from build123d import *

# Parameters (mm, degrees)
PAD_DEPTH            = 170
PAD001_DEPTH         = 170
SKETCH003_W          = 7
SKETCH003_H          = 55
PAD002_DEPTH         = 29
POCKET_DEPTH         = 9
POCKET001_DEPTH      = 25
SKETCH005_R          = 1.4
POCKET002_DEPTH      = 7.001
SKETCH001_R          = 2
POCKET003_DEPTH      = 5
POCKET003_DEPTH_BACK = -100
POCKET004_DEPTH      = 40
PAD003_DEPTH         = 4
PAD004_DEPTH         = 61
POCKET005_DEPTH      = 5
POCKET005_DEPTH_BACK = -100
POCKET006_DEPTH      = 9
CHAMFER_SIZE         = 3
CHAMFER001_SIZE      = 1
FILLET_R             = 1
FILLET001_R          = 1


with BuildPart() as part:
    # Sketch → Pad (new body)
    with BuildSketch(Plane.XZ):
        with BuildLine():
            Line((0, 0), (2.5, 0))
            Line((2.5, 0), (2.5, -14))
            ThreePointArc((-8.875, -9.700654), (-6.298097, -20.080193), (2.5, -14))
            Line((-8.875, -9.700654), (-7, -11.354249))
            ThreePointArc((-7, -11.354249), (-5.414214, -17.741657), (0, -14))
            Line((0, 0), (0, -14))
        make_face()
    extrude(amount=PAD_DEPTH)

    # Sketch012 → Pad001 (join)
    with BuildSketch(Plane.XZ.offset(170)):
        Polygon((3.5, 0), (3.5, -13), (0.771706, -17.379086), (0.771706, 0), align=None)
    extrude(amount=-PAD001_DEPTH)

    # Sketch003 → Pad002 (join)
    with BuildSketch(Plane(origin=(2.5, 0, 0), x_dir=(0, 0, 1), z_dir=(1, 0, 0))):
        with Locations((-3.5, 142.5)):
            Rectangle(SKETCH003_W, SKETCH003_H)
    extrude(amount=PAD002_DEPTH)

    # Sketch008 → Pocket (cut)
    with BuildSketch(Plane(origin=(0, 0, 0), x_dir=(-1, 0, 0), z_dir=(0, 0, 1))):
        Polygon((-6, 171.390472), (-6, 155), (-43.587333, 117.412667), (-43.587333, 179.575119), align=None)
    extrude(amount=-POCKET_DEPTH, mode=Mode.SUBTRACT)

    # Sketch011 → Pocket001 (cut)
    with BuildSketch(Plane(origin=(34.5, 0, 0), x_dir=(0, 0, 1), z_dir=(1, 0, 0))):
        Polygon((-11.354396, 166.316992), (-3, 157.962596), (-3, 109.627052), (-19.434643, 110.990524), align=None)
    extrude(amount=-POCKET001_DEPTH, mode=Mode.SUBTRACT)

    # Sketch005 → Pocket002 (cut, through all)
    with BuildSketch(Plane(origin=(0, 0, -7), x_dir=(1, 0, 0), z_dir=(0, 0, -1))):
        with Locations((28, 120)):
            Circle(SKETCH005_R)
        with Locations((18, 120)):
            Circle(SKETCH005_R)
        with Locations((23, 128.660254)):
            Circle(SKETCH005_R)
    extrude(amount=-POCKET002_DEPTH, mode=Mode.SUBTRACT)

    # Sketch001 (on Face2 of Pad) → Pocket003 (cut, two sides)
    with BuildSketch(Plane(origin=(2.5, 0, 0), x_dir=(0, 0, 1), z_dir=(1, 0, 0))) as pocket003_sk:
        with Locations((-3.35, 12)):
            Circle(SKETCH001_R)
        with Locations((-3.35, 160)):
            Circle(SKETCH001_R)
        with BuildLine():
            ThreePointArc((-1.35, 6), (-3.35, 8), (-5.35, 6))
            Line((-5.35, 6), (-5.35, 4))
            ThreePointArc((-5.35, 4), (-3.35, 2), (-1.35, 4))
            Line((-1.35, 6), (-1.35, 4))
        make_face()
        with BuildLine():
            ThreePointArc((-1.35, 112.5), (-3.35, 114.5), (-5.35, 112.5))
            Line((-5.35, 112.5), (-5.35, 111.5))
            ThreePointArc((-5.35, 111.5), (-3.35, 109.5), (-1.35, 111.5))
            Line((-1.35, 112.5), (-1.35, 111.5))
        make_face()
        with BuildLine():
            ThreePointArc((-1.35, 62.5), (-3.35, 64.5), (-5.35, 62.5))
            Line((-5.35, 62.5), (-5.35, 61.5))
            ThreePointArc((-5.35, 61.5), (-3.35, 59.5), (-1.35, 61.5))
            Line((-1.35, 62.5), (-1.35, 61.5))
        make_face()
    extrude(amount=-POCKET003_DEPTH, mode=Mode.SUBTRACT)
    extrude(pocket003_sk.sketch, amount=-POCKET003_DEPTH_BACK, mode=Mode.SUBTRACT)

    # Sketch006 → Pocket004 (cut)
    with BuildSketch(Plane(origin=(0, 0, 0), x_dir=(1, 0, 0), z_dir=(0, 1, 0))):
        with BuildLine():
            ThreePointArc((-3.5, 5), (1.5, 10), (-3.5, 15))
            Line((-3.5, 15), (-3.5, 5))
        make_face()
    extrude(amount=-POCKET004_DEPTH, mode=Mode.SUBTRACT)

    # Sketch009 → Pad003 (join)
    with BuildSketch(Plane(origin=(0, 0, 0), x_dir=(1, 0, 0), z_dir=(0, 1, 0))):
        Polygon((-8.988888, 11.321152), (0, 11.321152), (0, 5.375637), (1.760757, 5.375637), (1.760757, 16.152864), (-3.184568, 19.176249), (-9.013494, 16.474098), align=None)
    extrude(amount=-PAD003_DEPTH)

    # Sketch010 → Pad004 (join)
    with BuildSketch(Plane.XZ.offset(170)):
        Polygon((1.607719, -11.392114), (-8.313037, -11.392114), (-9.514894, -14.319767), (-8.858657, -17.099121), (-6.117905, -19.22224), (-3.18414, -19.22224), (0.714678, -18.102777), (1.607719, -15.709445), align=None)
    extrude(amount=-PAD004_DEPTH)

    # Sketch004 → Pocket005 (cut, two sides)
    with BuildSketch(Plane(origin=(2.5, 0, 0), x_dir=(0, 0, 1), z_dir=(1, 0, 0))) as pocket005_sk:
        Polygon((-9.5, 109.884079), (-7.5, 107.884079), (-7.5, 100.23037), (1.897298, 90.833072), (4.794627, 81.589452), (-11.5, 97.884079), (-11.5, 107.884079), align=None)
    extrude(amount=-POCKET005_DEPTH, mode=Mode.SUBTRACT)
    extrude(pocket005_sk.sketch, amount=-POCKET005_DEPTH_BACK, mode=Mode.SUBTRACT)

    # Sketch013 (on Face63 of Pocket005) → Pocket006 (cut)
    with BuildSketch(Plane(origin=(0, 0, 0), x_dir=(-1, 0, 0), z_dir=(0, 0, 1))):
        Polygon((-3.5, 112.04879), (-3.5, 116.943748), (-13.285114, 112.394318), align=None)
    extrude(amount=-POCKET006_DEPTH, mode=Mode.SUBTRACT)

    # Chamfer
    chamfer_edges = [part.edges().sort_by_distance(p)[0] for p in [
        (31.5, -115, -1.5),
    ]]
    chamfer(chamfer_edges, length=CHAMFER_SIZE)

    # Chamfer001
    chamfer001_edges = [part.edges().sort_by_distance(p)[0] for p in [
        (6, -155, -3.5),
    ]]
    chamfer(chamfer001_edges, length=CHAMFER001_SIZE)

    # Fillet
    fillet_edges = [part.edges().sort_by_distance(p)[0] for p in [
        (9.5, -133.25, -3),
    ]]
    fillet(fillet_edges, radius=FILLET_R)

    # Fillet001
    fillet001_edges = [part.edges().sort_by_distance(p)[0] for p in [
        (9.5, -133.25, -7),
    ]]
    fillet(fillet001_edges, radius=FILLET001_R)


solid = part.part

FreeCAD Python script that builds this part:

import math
import FreeCAD as App
import Part
import Sketcher
from FreeCAD import Vector
Q = App.Units.Quantity


def edges_at(feature, points):
    """Names of the edges that pass closest to the given points."""
    edges = feature.Shape.Edges
    near = lambda p: min(range(len(edges)), key=lambda i: edges[i].distToShape(Part.Vertex(*p))[0])
    return sorted({f"Edge{near(p) + 1}" for p in points})


def add_polygon(sketch, points):
    """Adds a closed chain of lines whose ends are joined by coincident constraints."""
    first, n = sketch.GeometryCount, len(points)
    for a, b in zip(points, points[1:] + points[:1]):
        sketch.addGeometry(Part.LineSegment(App.Vector(*a, 0), App.Vector(*b, 0)), False)
    for i in range(n):
        sketch.addConstraint(Sketcher.Constraint("Coincident", first + i, 2, first + (i + 1) % n, 1))

doc = App.newDocument("Part")
body = doc.addObject("PartDesign::Body", "Body")

sketch1 = body.newObject("Sketcher::SketchObject", "Sketch")
sketch1.AttachmentSupport = (doc.getObject("XZ_Plane"), [""])
sketch1.MapMode = "FlatFace"
sketch1.addGeometry([
    Part.LineSegment(Vector(2.5, 0, 0), Vector(0, 0, 0)),
    Part.LineSegment(Vector(0, 0, 0), Vector(0, -14, 0)),
    Part.ArcOfCircle(Part.Circle(Vector(-4, -14, 0), Vector(0, 0, 1), 4), math.radians(139), math.radians(360)),
    Part.LineSegment(Vector(-7, -11.4, 0), Vector(-8.9, -9.7, 0)),
    Part.ArcOfCircle(Part.Circle(Vector(-4, -14, 0), Vector(0, 0, 1), 6.5), math.radians(139), math.radians(360)),
    Part.LineSegment(Vector(2.5, -14, 0), Vector(2.5, 0, 0)),
], False)
sketch1.addConstraint([
    Sketcher.Constraint("Coincident", 0, 2, 1, 1),
    Sketcher.Constraint("Tangent", 1, 2, 2, 2),
    Sketcher.Constraint("Coincident", 2, 1, 3, 1),
    Sketcher.Constraint("Coincident", 3, 2, 4, 1),
    Sketcher.Constraint("Tangent", 4, 2, 5, 1),
    Sketcher.Constraint("Coincident", 5, 2, 0, 1),
    Sketcher.Constraint("Horizontal", 0),
    Sketcher.Constraint("Vertical", 1),
    Sketcher.Constraint("Vertical", 5),
    Sketcher.Constraint("Coincident", 0, 2, -1, 1),
    Sketcher.Constraint("Coincident", 4, 3, 2, 3),
    Sketcher.Constraint("Radius", 2, 4.0),
    Sketcher.Constraint("Radius", 4, 6.5),
    Sketcher.Constraint("DistanceY", 1, 2, 1, 1, 14.0),
    Sketcher.Constraint("DistanceX", 2, 1, -1, 1, 7.0),
    Sketcher.Constraint("DistanceX", 3, 2, -1, 1, 8.875),
])
pad1 = body.newObject("PartDesign::Pad", "Pad")
pad1.Profile = sketch1
pad1.Length = 170

sketch2 = body.newObject("Sketcher::SketchObject", "Sketch001")
sketch2.AttachmentSupport = (doc.getObject("XZ_Plane"), [""])
sketch2.MapMode = "FlatFace"
sketch2.AttachmentOffset = App.Placement(Vector(0, 0, 170), App.Rotation())
add_polygon(sketch2, [(3.5, -13), (3.5, 0), (0.8, 0), (0.8, -17.4)])
sketch2.addConstraint([
    Sketcher.Constraint("Vertical", 0),
    Sketcher.Constraint("Horizontal", 1),
    Sketcher.Constraint("Vertical", 2),
    Sketcher.Constraint("PointOnObject", 0, 2, -1),
    Sketcher.Constraint("DistanceY", 0, 1, 0, 2, 13.0),
    Sketcher.Constraint("DistanceX", -1, 1, 0, 2, 3.5),
    Sketcher.Constraint("DistanceX", 1, 2, 1, 1, 2.728294),
    Sketcher.Constraint("DistanceY", 2, 2, 2, 1, 17.379086),
])
pad2 = body.newObject("PartDesign::Pad", "Pad001")
pad2.Profile = sketch2
pad2.Length = 170
pad2.Reversed = True

sketch3 = body.newObject("Sketcher::SketchObject", "Sketch002")
sketch3.AttachmentSupport = (doc.getObject("YZ_Plane"), [""])
sketch3.MapMode = "FlatFace"
sketch3.AttachmentOffset = App.Placement(Vector(0, 0, 2.5), App.Rotation())
add_polygon(sketch3, [(-170, -7), (-115, -7), (-115, 0), (-170, 0)])
sketch3.addConstraint([
    Sketcher.Constraint("Horizontal", 0),
    Sketcher.Constraint("Vertical", 1),
    Sketcher.Constraint("Horizontal", 2),
    Sketcher.Constraint("Vertical", 3),
    Sketcher.Constraint("PointOnObject", 1, 2, -1),
    Sketcher.Constraint("DistanceX", 0, 1, 0, 2, 55.0),
    Sketcher.Constraint("DistanceY", 1, 1, 1, 2, 7.0),
    Sketcher.Constraint("DistanceX", 0, 2, -1, 1, 115.0),
])
pad3 = body.newObject("PartDesign::Pad", "Pad002")
pad3.Profile = sketch3
pad3.Length = 29

sketch4 = body.newObject("Sketcher::SketchObject", "Sketch003")
sketch4.AttachmentSupport = (doc.getObject("XY_Plane"), [""])
sketch4.MapMode = "FlatFace"
add_polygon(sketch4, [(6, -155), (6, -171), (44, -180), (44, -117)])
sketch4.addConstraint([
    Sketcher.Constraint("Vertical", 0),
    Sketcher.Constraint("Vertical", 2),
    Sketcher.Constraint("Angle", 3, Q("-135 deg")),
    Sketcher.Constraint("DistanceX", -1, 1, 0, 2, 6.0),
    Sketcher.Constraint("DistanceY", 3, 2, -1, 1, 155.0),
    Sketcher.Constraint("DistanceY", 0, 2, 0, 1, 16.390472),
    Sketcher.Constraint("DistanceY", 2, 1, 2, 2, 62.162452),
    Sketcher.Constraint("DistanceY", 1, 2, -1, 1, 179.575119),
])
pocket1 = body.newObject("PartDesign::Pocket", "Pocket")
pocket1.Profile = sketch4
pocket1.Length = 9

sketch5 = body.newObject("Sketcher::SketchObject", "Sketch004")
sketch5.AttachmentSupport = (doc.getObject("YZ_Plane"), [""])
sketch5.MapMode = "FlatFace"
sketch5.AttachmentOffset = App.Placement(Vector(0, 0, 34.5), App.Rotation())
add_polygon(sketch5, [(-158, -3), (-166, -11), (-111, -19), (-110, -3)])
sketch5.addConstraint([
    Sketcher.Constraint("Horizontal", 3),
    Sketcher.Constraint("Angle", 0, Q("-135 deg")),
    Sketcher.Constraint("DistanceY", 2, 2, -1, 1, 3.0),
    Sketcher.Constraint("Distance", 0, 11.8149),
    Sketcher.Constraint("Distance", 1, 55.913401),
    Sketcher.Constraint("DistanceX", 3, 2, 3, 1, 48.335544),
    Sketcher.Constraint("DistanceX", 0, 2, -1, 1, 166.316992),
    Sketcher.Constraint("DistanceX", 0, 2, 1, 2, 55.326468),
])
pocket2 = body.newObject("PartDesign::Pocket", "Pocket001")
pocket2.Profile = sketch5
pocket2.Length = 25

sketch6 = body.newObject("Sketcher::SketchObject", "Sketch005")
sketch6.AttachmentSupport = (doc.getObject("XY_Plane"), [""])
sketch6.MapMode = "FlatFace"
sketch6.AttachmentOffset = App.Placement(Vector(0, 0, -7), App.Rotation())
sketch6.addGeometry([
    Part.Circle(Vector(28, -120, 0), Vector(0, 0, 1), 1.4),
    Part.Circle(Vector(18, -120, 0), Vector(0, 0, 1), 1.4),
    Part.Circle(Vector(23, -128.7, 0), Vector(0, 0, 1), 1.4),
], False)
sketch6.addConstraint([
    Sketcher.Constraint("Equal", 0, 1),
    Sketcher.Constraint("Equal", 1, 2),
    Sketcher.Constraint("Horizontal", 0, 3, 1, 3),
    Sketcher.Constraint("Diameter", 0, 2.8),
    Sketcher.Constraint("DistanceX", -1, 1, 0, 3, 28.0),
    Sketcher.Constraint("DistanceY", 0, 3, -1, 1, 120.0),
    Sketcher.Constraint("DistanceX", -1, 1, 1, 3, 18.0),
    Sketcher.Constraint("DistanceX", -1, 1, 2, 3, 23.0),
    Sketcher.Constraint("DistanceY", 2, 3, -1, 1, 128.660254),
])
pocket3 = body.newObject("PartDesign::Pocket", "Pocket002")
pocket3.Profile = sketch6
pocket3.Type = "ThroughAll"
pocket3.Reversed = True

sketch7 = body.newObject("Sketcher::SketchObject", "Sketch006")
sketch7.AttachmentSupport = (doc.getObject("YZ_Plane"), [""])
sketch7.MapMode = "FlatFace"
sketch7.AttachmentOffset = App.Placement(Vector(0, 0, 2.5), App.Rotation())
sketch7.addGeometry([
    Part.Circle(Vector(-12, -3.4, 0), Vector(0, 0, 1), 2),
    Part.Circle(Vector(-160, -3.4, 0), Vector(0, 0, 1), 2),
    Part.ArcOfCircle(Part.Circle(Vector(-6, -3.4, 0), Vector(0, 0, 1), 2), math.radians(90), math.radians(270)),
    Part.LineSegment(Vector(-6, -5.3, 0), Vector(-4, -5.3, 0)),
    Part.ArcOfCircle(Part.Circle(Vector(-4, -3.4, 0), Vector(0, 0, 1), 2), math.radians(-90), math.radians(90)),
    Part.LineSegment(Vector(-4, -1.4, 0), Vector(-6, -1.4, 0)),
    Part.ArcOfCircle(Part.Circle(Vector(-112.5, -3.4, 0), Vector(0, 0, 1), 2), math.radians(90), math.radians(270)),
    Part.LineSegment(Vector(-112.5, -5.3, 0), Vector(-111.5, -5.3, 0)),
    Part.ArcOfCircle(Part.Circle(Vector(-111.5, -3.4, 0), Vector(0, 0, 1), 2), math.radians(-90), math.radians(90)),
    Part.LineSegment(Vector(-111.5, -1.4, 0), Vector(-112.5, -1.4, 0)),
    Part.ArcOfCircle(Part.Circle(Vector(-62.5, -3.4, 0), Vector(0, 0, 1), 2), math.radians(90), math.radians(270)),
    Part.LineSegment(Vector(-62.5, -5.3, 0), Vector(-61.5, -5.3, 0)),
    Part.ArcOfCircle(Part.Circle(Vector(-61.5, -3.4, 0), Vector(0, 0, 1), 2), math.radians(-90), math.radians(90)),
    Part.LineSegment(Vector(-61.5, -1.4, 0), Vector(-62.5, -1.4, 0)),
], False)
sketch7.addConstraint([
    Sketcher.Constraint("Tangent", 2, 2, 3, 1),
    Sketcher.Constraint("Tangent", 3, 2, 4, 1),
    Sketcher.Constraint("Tangent", 4, 2, 5, 1),
    Sketcher.Constraint("Tangent", 5, 2, 2, 1),
    Sketcher.Constraint("Tangent", 6, 2, 7, 1),
    Sketcher.Constraint("Tangent", 7, 2, 8, 1),
    Sketcher.Constraint("Tangent", 8, 2, 9, 1),
    Sketcher.Constraint("Tangent", 9, 2, 6, 1),
    Sketcher.Constraint("Tangent", 10, 2, 11, 1),
    Sketcher.Constraint("Tangent", 11, 2, 12, 1),
    Sketcher.Constraint("Tangent", 12, 2, 13, 1),
    Sketcher.Constraint("Tangent", 13, 2, 10, 1),
    Sketcher.Constraint("Horizontal", 3),
    Sketcher.Constraint("Horizontal", 5),
    Sketcher.Constraint("Horizontal", 7),
    Sketcher.Constraint("Horizontal", 9),
    Sketcher.Constraint("Horizontal", 11),
    Sketcher.Constraint("Horizontal", 13),
    Sketcher.Constraint("Equal", 0, 1),
    Sketcher.Constraint("Equal", 1, 2),
    Sketcher.Constraint("Equal", 4, 6),
    Sketcher.Constraint("Equal", 8, 10),
    Sketcher.Constraint("Horizontal", 0, 3, 1, 3),
    Sketcher.Constraint("Horizontal", 1, 3, 2, 3),
    Sketcher.Constraint("Horizontal", 4, 3, 6, 3),
    Sketcher.Constraint("Horizontal", 8, 3, 10, 3),
    Sketcher.Constraint("Equal", 9, 11),
    Sketcher.Constraint("Diameter", 0, 4.0),
    Sketcher.Constraint("DistanceX", 3, 1, 3, 2, 2.0),
    Sketcher.Constraint("DistanceX", 7, 1, 7, 2, 1.0),
    Sketcher.Constraint("DistanceX", 0, 3, -1, 1, 12.0),
    Sketcher.Constraint("DistanceX", 1, 3, -1, 1, 160.0),
    Sketcher.Constraint("DistanceX", 2, 3, -1, 1, 6.0),
    Sketcher.Constraint("DistanceX", 8, 3, 10, 3, 49.0),
    Sketcher.Constraint("DistanceX", 6, 3, -1, 1, 112.5),
    Sketcher.Constraint("DistanceY", 0, 3, -1, 1, 3.35),
])
pocket4 = body.newObject("PartDesign::Pocket", "Pocket003")
pocket4.Profile = sketch7
pocket4.Type = "ThroughAll"
pocket4.Midplane = True

sketch8 = body.newObject("Sketcher::SketchObject", "Sketch007")
sketch8.AttachmentSupport = (doc.getObject("XZ_Plane"), [""])
sketch8.MapMode = "FlatFace"
sketch8.addGeometry([
    Part.ArcOfCircle(Part.Circle(Vector(-4, -10, 0), Vector(0, 0, 1), 5), math.radians(-90), math.radians(90)),
    Part.LineSegment(Vector(-4, -15, 0), Vector(-4, -5, 0)),
], False)
sketch8.addConstraint([
    Sketcher.Constraint("Coincident", 0, 1, 1, 1),
    Sketcher.Constraint("Coincident", 1, 2, 0, 2),
    Sketcher.Constraint("Vertical", 1),
    Sketcher.Constraint("Radius", 0, 5.0),
    Sketcher.Constraint("DistanceY", 0, 3, -1, 1, 10.0),
    Sketcher.Constraint("DistanceX", 0, 3, -1, 1, 3.5),
    Sketcher.Constraint("DistanceX", 0, 1, -1, 1, 3.5),
])
pocket5 = body.newObject("PartDesign::Pocket", "Pocket004")
pocket5.Profile = sketch8
pocket5.Length = 40
pocket5.Reversed = True

sketch9 = body.newObject("Sketcher::SketchObject", "Sketch008")
sketch9.AttachmentSupport = (doc.getObject("XZ_Plane"), [""])
sketch9.MapMode = "FlatFace"
add_polygon(sketch9, [(-9, -11.3), (0, -11.3), (0, -5.4), (1.8, -5.4), (1.8, -16.2), (-3.2, -19.2), (-9, -16.5)])
sketch9.addConstraint([
    Sketcher.Constraint("Horizontal", 0),
    Sketcher.Constraint("Vertical", 1),
    Sketcher.Constraint("Horizontal", 2),
    Sketcher.Constraint("Vertical", 3),
    Sketcher.Constraint("PointOnObject", 0, 2, -2),
    Sketcher.Constraint("Distance", 4, 5.7963),
    Sketcher.Constraint("DistanceY", 5, 2, -1, 1, 16.474098),
    Sketcher.Constraint("DistanceX", 0, 1, 0, 2, 8.988888),
    Sketcher.Constraint("DistanceX", 2, 1, 2, 2, 1.760757),
    Sketcher.Constraint("DistanceY", 1, 1, 1, 2, 5.945515),
    Sketcher.Constraint("DistanceY", 3, 2, 3, 1, 10.777227),
    Sketcher.Constraint("DistanceX", 4, 2, -1, 1, 3.184568),
    Sketcher.Constraint("DistanceY", 4, 2, -1, 1, 19.176249),
    Sketcher.Constraint("DistanceX", 5, 2, 3, 2, 10.774251),
])
pad4 = body.newObject("PartDesign::Pad", "Pad003")
pad4.Profile = sketch9
pad4.Length = 4

sketch10 = body.newObject("Sketcher::SketchObject", "Sketch009")
sketch10.AttachmentSupport = (doc.getObject("XZ_Plane"), [""])
sketch10.MapMode = "FlatFace"
sketch10.AttachmentOffset = App.Placement(Vector(0, 0, 170), App.Rotation())
add_polygon(sketch10, [(1.6, -11.4), (-8.3, -11.4), (-9.5, -14.3), (-8.9, -17.1), (-6.1, -19.2), (-3.2, -19.2), (0.7, -18.1), (1.6, -15.7)])
sketch10.addConstraint([
    Sketcher.Constraint("Horizontal", 0),
    Sketcher.Constraint("Horizontal", 4),
    Sketcher.Constraint("Vertical", 7),
    Sketcher.Constraint("DistanceY", 7, 1, 7, 2, 4.317331),
    Sketcher.Constraint("Distance", 5, 4.05635),
    Sketcher.Constraint("DistanceX", 0, 2, 0, 1, 9.920756),
    Sketcher.Constraint("DistanceX", 4, 1, 4, 2, 2.933765),
    Sketcher.Constraint("DistanceY", 2, 2, -1, 1, 17.099121),
    Sketcher.Constraint("DistanceY", 3, 2, -1, 1, 19.22224),
    Sketcher.Constraint("DistanceX", 4, 2, -1, 1, 3.18414),
    Sketcher.Constraint("DistanceX", -1, 1, 5, 2, 0.714678),
    Sketcher.Constraint("DistanceX", -1, 1, 6, 2, 1.607719),
    Sketcher.Constraint("DistanceX", 2, 2, 0, 2, 0.54562),
    Sketcher.Constraint("DistanceX", 1, 2, 3, 2, 3.396989),
    Sketcher.Constraint("DistanceY", 5, 2, 1, 2, 3.78301),
    Sketcher.Constraint("DistanceY", 5, 2, 6, 2, 2.393332),
])
pad5 = body.newObject("PartDesign::Pad", "Pad004")
pad5.Profile = sketch10
pad5.Length = 61
pad5.Reversed = True

sketch11 = body.newObject("Sketcher::SketchObject", "Sketch010")
sketch11.AttachmentSupport = (doc.getObject("YZ_Plane"), [""])
sketch11.MapMode = "FlatFace"
sketch11.AttachmentOffset = App.Placement(Vector(0, 0, 2.5), App.Rotation())
add_polygon(sketch11, [(-107.9, -7.5), (-109.9, -9.5), (-107.9, -11.5), (-97.9, -11.5), (-81.6, 4.8), (-90.8, 1.9), (-100.2, -7.5)])
sketch11.addConstraint([
    Sketcher.Constraint("Horizontal", 2),
    Sketcher.Constraint("Horizontal", 6),
    Sketcher.Constraint("Perpendicular", 0, 1),
    Sketcher.Constraint("Perpendicular", 1, 3),
    Sketcher.Constraint("Parallel", 3, 5),
    Sketcher.Constraint("Vertical", 1, 2, 6, 2),
    Sketcher.Constraint("Equal", 0, 1),
    Sketcher.Constraint("DistanceX", 2, 1, 2, 2, 10.0),
    Sketcher.Constraint("DistanceX", 0, 2, 1, 2, 2.0),
    Sketcher.Constraint("DistanceY", 0, 2, -1, 1, 9.5),
    Sketcher.Constraint("DistanceX", 6, 2, 6, 1, 7.653709),
    Sketcher.Constraint("DistanceX", 0, 2, -1, 1, 109.884079),
    Sketcher.Constraint("DistanceX", 3, 2, -1, 1, 81.589452),
    Sketcher.Constraint("DistanceX", 4, 2, -1, 1, 90.833072),
])
pocket6 = body.newObject("PartDesign::Pocket", "Pocket005")
pocket6.Profile = sketch11
pocket6.Type = "TwoLengths"
pocket6.Length = 5
pocket6.Length2 = 100

sketch12 = body.newObject("Sketcher::SketchObject", "Sketch011")
sketch12.AttachmentSupport = (doc.getObject("XY_Plane"), [""])
sketch12.MapMode = "FlatFace"
add_polygon(sketch12, [(3.5, -112), (3.5, -116.9), (13.3, -112.4)])
sketch12.addConstraint([
    Sketcher.Constraint("Vertical", 0),
    Sketcher.Constraint("DistanceX", -1, 1, 0, 2, 3.5),
    Sketcher.Constraint("DistanceY", 0, 2, 0, 1, 4.894958),
    Sketcher.Constraint("DistanceY", 0, 2, -1, 1, 116.943748),
    Sketcher.Constraint("DistanceY", 1, 2, -1, 1, 112.394318),
    Sketcher.Constraint("Distance", 1, 10.791004),
])
pocket7 = body.newObject("PartDesign::Pocket", "Pocket006")
pocket7.Profile = sketch12
pocket7.Length = 9
doc.recompute()

chamfer = body.newObject("PartDesign::Chamfer", "Chamfer")
chamfer.Base = (pocket7, edges_at(pocket7, [(31.5, -115, -1.5)]))
chamfer.Size = 3
doc.recompute()

chamfer2 = body.newObject("PartDesign::Chamfer", "Chamfer001")
chamfer2.Base = (chamfer, edges_at(chamfer, [(6, -155, -3.5)]))
chamfer2.Size = 1
doc.recompute()

fillet = body.newObject("PartDesign::Fillet", "Fillet")
fillet.Base = (chamfer2, edges_at(chamfer2, [(9.5, -133.25, -3)]))
fillet.Radius = 1
doc.recompute()

fillet2 = body.newObject("PartDesign::Fillet", "Fillet001")
fillet2.Base = (fillet, edges_at(fillet, [(9.5, -133.25, -7)]))
fillet2.Radius = 1

doc.recompute()
